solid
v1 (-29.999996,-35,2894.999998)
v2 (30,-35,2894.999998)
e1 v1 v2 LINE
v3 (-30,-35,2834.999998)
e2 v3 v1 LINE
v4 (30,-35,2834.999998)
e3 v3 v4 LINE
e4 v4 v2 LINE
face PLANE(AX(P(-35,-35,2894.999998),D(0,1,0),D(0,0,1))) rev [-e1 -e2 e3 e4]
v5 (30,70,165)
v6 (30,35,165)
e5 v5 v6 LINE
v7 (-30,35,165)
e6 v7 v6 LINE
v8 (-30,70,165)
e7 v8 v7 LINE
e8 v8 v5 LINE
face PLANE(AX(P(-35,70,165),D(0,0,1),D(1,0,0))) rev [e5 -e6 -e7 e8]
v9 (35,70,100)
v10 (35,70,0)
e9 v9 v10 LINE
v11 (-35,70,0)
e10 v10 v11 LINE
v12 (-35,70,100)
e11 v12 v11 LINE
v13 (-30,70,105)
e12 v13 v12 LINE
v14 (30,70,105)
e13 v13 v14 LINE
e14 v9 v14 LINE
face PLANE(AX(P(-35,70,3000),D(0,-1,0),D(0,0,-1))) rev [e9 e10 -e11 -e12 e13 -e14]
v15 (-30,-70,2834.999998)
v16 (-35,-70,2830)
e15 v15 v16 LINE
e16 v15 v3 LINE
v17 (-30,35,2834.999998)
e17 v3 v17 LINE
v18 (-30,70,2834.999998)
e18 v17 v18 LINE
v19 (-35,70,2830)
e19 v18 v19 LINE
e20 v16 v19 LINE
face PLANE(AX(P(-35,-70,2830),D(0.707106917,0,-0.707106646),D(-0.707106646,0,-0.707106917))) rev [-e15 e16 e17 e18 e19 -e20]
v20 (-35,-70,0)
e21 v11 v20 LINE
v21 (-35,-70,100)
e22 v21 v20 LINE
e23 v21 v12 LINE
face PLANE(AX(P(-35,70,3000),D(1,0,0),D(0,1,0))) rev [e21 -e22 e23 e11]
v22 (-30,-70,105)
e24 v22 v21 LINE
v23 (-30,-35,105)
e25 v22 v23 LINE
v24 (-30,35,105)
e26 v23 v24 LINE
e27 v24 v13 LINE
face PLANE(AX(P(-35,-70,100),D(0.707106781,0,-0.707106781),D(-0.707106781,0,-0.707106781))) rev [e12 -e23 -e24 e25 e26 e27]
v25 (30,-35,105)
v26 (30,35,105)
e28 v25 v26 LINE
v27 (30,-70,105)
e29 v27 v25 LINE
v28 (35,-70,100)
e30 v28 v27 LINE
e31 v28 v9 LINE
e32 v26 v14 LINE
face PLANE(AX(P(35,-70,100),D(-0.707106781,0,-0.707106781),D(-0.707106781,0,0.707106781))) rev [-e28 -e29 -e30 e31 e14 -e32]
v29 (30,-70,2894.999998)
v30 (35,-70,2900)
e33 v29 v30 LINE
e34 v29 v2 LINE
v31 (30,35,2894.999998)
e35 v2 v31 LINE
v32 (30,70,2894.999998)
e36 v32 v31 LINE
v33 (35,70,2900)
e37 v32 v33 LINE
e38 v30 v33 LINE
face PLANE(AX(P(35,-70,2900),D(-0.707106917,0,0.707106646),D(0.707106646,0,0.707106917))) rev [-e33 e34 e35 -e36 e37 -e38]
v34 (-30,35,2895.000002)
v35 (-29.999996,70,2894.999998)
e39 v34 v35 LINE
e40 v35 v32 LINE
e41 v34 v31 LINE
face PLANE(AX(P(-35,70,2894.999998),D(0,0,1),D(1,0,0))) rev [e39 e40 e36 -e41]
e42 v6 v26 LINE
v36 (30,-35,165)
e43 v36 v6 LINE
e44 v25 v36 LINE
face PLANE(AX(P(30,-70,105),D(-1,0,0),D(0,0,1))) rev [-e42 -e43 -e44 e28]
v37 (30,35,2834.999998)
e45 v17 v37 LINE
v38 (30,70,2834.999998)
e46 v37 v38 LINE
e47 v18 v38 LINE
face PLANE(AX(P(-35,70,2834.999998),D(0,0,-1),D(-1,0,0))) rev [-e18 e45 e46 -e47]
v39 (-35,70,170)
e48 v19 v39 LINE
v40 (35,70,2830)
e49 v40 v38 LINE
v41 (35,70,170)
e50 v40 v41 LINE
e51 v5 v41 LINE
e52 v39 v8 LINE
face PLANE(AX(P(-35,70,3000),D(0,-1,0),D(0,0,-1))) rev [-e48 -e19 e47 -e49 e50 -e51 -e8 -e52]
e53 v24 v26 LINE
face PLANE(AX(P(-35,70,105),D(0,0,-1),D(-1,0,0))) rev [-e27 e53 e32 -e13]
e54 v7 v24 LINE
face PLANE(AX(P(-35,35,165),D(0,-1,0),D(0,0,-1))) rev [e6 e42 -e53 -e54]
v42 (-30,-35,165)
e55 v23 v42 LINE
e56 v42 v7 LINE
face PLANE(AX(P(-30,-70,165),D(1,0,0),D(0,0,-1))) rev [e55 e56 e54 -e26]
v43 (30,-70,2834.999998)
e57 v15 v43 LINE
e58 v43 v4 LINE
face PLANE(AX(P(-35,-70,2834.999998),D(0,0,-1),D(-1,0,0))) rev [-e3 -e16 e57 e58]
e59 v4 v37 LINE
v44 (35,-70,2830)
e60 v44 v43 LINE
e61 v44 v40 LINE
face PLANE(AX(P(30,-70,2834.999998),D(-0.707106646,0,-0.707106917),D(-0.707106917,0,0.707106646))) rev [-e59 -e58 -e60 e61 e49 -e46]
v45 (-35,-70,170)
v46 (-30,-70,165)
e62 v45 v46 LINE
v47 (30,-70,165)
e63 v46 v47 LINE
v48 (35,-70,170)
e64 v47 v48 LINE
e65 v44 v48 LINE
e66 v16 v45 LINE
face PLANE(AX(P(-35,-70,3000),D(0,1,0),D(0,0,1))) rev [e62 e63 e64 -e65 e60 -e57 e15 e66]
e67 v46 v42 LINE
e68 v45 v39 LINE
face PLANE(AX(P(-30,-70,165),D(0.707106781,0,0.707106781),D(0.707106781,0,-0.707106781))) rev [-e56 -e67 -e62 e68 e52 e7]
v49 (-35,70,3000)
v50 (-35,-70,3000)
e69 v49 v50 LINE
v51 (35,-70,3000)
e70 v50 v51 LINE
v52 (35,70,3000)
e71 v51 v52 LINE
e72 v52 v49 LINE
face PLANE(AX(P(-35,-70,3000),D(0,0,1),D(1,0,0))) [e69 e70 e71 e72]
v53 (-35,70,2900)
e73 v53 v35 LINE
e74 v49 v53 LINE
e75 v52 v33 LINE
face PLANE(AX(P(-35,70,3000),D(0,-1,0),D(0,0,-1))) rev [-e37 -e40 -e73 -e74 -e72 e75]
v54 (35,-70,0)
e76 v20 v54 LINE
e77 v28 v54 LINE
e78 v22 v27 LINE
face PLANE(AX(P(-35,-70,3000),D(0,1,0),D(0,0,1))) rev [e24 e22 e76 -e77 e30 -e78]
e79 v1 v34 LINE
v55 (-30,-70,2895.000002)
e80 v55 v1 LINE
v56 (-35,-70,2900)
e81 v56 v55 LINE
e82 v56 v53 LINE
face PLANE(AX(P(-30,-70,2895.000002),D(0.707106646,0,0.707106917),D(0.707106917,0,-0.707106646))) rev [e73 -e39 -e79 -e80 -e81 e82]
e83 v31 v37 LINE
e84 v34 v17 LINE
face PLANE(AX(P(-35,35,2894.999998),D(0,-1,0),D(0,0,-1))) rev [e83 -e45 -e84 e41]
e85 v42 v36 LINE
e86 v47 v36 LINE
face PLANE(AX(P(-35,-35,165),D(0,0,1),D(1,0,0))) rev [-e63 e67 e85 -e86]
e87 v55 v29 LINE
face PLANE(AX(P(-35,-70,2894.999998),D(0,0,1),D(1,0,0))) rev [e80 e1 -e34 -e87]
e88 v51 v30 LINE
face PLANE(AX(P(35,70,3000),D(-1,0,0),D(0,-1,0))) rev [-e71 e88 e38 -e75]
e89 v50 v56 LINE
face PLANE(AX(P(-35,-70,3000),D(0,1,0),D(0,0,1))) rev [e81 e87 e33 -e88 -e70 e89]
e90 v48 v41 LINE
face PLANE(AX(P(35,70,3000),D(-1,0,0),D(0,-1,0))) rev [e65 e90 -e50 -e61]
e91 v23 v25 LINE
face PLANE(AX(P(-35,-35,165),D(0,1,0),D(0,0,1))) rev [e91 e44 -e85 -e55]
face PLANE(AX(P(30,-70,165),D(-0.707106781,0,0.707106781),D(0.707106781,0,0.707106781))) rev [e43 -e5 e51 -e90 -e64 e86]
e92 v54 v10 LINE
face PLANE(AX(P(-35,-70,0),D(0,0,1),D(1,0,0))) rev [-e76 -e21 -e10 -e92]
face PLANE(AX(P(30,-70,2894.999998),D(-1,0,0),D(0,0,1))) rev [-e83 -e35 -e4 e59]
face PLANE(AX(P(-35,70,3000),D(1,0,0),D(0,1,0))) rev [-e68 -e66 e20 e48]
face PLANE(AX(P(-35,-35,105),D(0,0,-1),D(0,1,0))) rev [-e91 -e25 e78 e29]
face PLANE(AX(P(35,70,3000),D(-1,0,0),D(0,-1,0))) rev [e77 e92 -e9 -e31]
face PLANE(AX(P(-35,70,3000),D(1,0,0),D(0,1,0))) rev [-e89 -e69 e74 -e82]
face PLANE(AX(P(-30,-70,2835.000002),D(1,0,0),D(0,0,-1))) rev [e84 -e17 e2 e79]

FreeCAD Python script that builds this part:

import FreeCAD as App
import Part
import Sketcher


def add_polygon(sketch, points):
    """Adds a closed chain of lines whose ends are joined by coincident constraints."""
    first, n = sketch.GeometryCount, len(points)
    for a, b in zip(points, points[1:] + points[:1]):
        sketch.addGeometry(Part.LineSegment(App.Vector(*a, 0), App.Vector(*b, 0)), False)
    for i in range(n):
        sketch.addConstraint(Sketcher.Constraint("Coincident", first + i, 2, first + (i + 1) % n, 1))

doc = App.newDocument("Part")
body = doc.addObject("PartDesign::Body", "Body")

sketch1 = body.newObject("Sketcher::SketchObject", "Sketch")
sketch1.AttachmentSupport = (doc.getObject("XY_Plane"), [""])
sketch1.MapMode = "FlatFace"
add_polygon(sketch1, [(-35, 70), (-35, -70), (35, -70), (35, 70)])
sketch1.addConstraint([
    Sketcher.Constraint("Vertical", 0),
    Sketcher.Constraint("Horizontal", 1),
    Sketcher.Constraint("Vertical", 2),
    Sketcher.Constraint("Horizontal", 3),
    Sketcher.Constraint("Symmetric", 0, 2, 2, 2, -1, 1),
    Sketcher.Constraint("DistanceX", 1, 1, 1, 2, 70.0),
    Sketcher.Constraint("DistanceY", 0, 2, 0, 1, 140.0),
])
pad1 = body.newObject("PartDesign::Pad", "Pad")
pad1.Profile = sketch1
pad1.Length = 3000

sketch2 = body.newObject("Sketcher::SketchObject", "Sketch001")
sketch2.AttachmentSupport = (doc.getObject("XZ_Plane"), [""])
sketch2.MapMode = "FlatFace"
sketch2.AttachmentOffset = App.Placement(App.Vector(0, 0, -70), App.Rotation())
add_polygon(sketch2, [(-30, 105), (-35, 100), (-35, 170), (-30, 165)])
add_polygon(sketch2, [(35, 100), (30, 105), (30, 165), (35, 170)])
sketch2.addConstraint([
    Sketcher.Constraint("Vertical", 1),
    Sketcher.Constraint("Vertical", 3),
    Sketcher.Constraint("Vertical", 5),
    Sketcher.Constraint("Vertical", 7),
    Sketcher.Constraint("Symmetric", 3, 2, 4, 2, -2),
    Sketcher.Constraint("Symmetric", 1, 2, 6, 2, -2),
    Sketcher.Constraint("Perpendicular", 0, 2),
    Sketcher.Constraint("Parallel", 2, 4),
    Sketcher.Constraint("Perpendicular", 4, 6),
    Sketcher.Constraint("Horizontal", 2, 2, 5, 2),
    Sketcher.Constraint("DistanceY", 1, 1, 1, 2, 70.0),
    Sketcher.Constraint("DistanceY", 3, 2, 3, 1, 60.0),
    Sketcher.Constraint("DistanceX", 0, 2, -1, 1, 35.0),
    Sketcher.Constraint("DistanceY", -1, 1, 0, 2, 100.0),
])
pocket1 = body.newObject("PartDesign::Pocket", "Pocket")
pocket1.Profile = sketch2
pocket1.Type = "ThroughAll"
pocket1.Reversed = True

sketch3 = body.newObject("Sketcher::SketchObject", "Sketch002")
sketch3.AttachmentSupport = (doc.getObject("YZ_Plane"), [""])
sketch3.MapMode = "FlatFace"
sketch3.AttachmentOffset = App.Placement(App.Vector(0, 0, 30), App.Rotation())
add_polygon(sketch3, [(70, 165), (35, 165), (35, 105), (70, 105)])
add_polygon(sketch3, [(-35, 165), (-70, 165), (-70, 105), (-35, 105)])
sketch3.addConstraint([
    Sketcher.Constraint("Horizontal", 0),
    Sketcher.Constraint("Vertical", 1),
    Sketcher.Constraint("Horizontal", 2),
    Sketcher.Constraint("Vertical", 3),
    Sketcher.Constraint("Horizontal", 4),
    Sketcher.Constraint("Vertical", 5),
    Sketcher.Constraint("Horizontal", 6),
    Sketcher.Constraint("Vertical", 7),
    Sketcher.Constraint("Symmetric", 3, 2, 4, 2, -2),
    Sketcher.Constraint("Symmetric", 1, 2, 6, 2, -2),
    Sketcher.Constraint("DistanceX", 0, 2, 0, 1, 35.0),
    Sketcher.Constraint("DistanceY", 1, 2, 1, 1, 60.0),
    Sketcher.Constraint("DistanceX", -1, 1, 0, 2, 35.0),
    Sketcher.Constraint("DistanceY", -1, 1, 0, 2, 165.0),
])
pocket2 = body.newObject("PartDesign::Pocket", "Pocket001")
pocket2.Profile = sketch3
pocket2.Type = "ThroughAll"

sketch4 = body.newObject("Sketcher::SketchObject", "Sketch003")
sketch4.AttachmentSupport = (doc.getObject("XZ_Plane"), [""])
sketch4.MapMode = "FlatFace"
sketch4.AttachmentOffset = App.Placement(App.Vector(0, 0, -70), App.Rotation())
add_polygon(sketch4, [(35, 2900), (35, 2830), (30, 2835), (30, 2895)])
add_polygon(sketch4, [(-30, 2835), (-35, 2830), (-35, 2900), (-30, 2895)])
sketch4.addConstraint([
    Sketcher.Constraint("Vertical", 0),
    Sketcher.Constraint("Vertical", 2),
    Sketcher.Constraint("Vertical", 5),
    Sketcher.Constraint("Vertical", 7),
    Sketcher.Constraint("Symmetric", 0, 2, 4, 2, -2),
    Sketcher.Constraint("Symmetric", 2, 2, 6, 2, -2),
    Sketcher.Constraint("Perpendicular", 1, 3),
    Sketcher.Constraint("Parallel", 3, 4),
    Sketcher.Constraint("Perpendicular", 4, 6),
    Sketcher.Constraint("Horizontal", 3, 2, 5, 2),
    Sketcher.Constraint("DistanceY", 0, 2, 0, 1, 70.0),
    Sketcher.Constraint("DistanceY", 2, 1, 2, 2, 60.0),
    Sketcher.Constraint("DistanceX", -1, 1, 0, 2, 35.0),
    Sketcher.Constraint("DistanceY", -1, 1, 0, 2, 2830.0),
])
pocket3 = body.newObject("PartDesign::Pocket", "Pocket002")
pocket3.Profile = sketch4
pocket3.Type = "ThroughAll"
pocket3.Reversed = True

sketch5 = body.newObject("Sketcher::SketchObject", "Sketch004")
sketch5.AttachmentSupport = (doc.getObject("YZ_Plane"), [""])
sketch5.MapMode = "FlatFace"
sketch5.AttachmentOffset = App.Placement(App.Vector(0, 0, 30), App.Rotation())
add_polygon(sketch5, [(70, 2895), (35, 2895), (35, 2835), (70, 2835)])
add_polygon(sketch5, [(-35, 2895), (-70, 2895), (-70, 2835), (-35, 2835)])
sketch5.addConstraint([
    Sketcher.Constraint("Horizontal", 0),
    Sketcher.Constraint("Vertical", 1),
    Sketcher.Constraint("Horizontal", 2),
    Sketcher.Constraint("Vertical", 3),
    Sketcher.Constraint("Horizontal", 4),
    Sketcher.Constraint("Vertical", 5),
    Sketcher.Constraint("Horizontal", 6),
    Sketcher.Constraint("Vertical", 7),
    Sketcher.Constraint("Symmetric", 3, 2, 4, 2, -2),
    Sketcher.Constraint("Symmetric", 1, 2, 6, 2, -2),
    Sketcher.Constraint("DistanceX", 0, 2, 0, 1, 35.0),
    Sketcher.Constraint("DistanceY", 1, 2, 1, 1, 60.0),
    Sketcher.Constraint("DistanceX", -1, 1, 0, 2, 35.0),
    Sketcher.Constraint("DistanceY", -1, 1, 0, 2, 2894.999998),
])
pocket4 = body.newObject("PartDesign::Pocket", "Pocket003")
pocket4.Profile = sketch5
pocket4.Type = "ThroughAll"

doc.recompute()
